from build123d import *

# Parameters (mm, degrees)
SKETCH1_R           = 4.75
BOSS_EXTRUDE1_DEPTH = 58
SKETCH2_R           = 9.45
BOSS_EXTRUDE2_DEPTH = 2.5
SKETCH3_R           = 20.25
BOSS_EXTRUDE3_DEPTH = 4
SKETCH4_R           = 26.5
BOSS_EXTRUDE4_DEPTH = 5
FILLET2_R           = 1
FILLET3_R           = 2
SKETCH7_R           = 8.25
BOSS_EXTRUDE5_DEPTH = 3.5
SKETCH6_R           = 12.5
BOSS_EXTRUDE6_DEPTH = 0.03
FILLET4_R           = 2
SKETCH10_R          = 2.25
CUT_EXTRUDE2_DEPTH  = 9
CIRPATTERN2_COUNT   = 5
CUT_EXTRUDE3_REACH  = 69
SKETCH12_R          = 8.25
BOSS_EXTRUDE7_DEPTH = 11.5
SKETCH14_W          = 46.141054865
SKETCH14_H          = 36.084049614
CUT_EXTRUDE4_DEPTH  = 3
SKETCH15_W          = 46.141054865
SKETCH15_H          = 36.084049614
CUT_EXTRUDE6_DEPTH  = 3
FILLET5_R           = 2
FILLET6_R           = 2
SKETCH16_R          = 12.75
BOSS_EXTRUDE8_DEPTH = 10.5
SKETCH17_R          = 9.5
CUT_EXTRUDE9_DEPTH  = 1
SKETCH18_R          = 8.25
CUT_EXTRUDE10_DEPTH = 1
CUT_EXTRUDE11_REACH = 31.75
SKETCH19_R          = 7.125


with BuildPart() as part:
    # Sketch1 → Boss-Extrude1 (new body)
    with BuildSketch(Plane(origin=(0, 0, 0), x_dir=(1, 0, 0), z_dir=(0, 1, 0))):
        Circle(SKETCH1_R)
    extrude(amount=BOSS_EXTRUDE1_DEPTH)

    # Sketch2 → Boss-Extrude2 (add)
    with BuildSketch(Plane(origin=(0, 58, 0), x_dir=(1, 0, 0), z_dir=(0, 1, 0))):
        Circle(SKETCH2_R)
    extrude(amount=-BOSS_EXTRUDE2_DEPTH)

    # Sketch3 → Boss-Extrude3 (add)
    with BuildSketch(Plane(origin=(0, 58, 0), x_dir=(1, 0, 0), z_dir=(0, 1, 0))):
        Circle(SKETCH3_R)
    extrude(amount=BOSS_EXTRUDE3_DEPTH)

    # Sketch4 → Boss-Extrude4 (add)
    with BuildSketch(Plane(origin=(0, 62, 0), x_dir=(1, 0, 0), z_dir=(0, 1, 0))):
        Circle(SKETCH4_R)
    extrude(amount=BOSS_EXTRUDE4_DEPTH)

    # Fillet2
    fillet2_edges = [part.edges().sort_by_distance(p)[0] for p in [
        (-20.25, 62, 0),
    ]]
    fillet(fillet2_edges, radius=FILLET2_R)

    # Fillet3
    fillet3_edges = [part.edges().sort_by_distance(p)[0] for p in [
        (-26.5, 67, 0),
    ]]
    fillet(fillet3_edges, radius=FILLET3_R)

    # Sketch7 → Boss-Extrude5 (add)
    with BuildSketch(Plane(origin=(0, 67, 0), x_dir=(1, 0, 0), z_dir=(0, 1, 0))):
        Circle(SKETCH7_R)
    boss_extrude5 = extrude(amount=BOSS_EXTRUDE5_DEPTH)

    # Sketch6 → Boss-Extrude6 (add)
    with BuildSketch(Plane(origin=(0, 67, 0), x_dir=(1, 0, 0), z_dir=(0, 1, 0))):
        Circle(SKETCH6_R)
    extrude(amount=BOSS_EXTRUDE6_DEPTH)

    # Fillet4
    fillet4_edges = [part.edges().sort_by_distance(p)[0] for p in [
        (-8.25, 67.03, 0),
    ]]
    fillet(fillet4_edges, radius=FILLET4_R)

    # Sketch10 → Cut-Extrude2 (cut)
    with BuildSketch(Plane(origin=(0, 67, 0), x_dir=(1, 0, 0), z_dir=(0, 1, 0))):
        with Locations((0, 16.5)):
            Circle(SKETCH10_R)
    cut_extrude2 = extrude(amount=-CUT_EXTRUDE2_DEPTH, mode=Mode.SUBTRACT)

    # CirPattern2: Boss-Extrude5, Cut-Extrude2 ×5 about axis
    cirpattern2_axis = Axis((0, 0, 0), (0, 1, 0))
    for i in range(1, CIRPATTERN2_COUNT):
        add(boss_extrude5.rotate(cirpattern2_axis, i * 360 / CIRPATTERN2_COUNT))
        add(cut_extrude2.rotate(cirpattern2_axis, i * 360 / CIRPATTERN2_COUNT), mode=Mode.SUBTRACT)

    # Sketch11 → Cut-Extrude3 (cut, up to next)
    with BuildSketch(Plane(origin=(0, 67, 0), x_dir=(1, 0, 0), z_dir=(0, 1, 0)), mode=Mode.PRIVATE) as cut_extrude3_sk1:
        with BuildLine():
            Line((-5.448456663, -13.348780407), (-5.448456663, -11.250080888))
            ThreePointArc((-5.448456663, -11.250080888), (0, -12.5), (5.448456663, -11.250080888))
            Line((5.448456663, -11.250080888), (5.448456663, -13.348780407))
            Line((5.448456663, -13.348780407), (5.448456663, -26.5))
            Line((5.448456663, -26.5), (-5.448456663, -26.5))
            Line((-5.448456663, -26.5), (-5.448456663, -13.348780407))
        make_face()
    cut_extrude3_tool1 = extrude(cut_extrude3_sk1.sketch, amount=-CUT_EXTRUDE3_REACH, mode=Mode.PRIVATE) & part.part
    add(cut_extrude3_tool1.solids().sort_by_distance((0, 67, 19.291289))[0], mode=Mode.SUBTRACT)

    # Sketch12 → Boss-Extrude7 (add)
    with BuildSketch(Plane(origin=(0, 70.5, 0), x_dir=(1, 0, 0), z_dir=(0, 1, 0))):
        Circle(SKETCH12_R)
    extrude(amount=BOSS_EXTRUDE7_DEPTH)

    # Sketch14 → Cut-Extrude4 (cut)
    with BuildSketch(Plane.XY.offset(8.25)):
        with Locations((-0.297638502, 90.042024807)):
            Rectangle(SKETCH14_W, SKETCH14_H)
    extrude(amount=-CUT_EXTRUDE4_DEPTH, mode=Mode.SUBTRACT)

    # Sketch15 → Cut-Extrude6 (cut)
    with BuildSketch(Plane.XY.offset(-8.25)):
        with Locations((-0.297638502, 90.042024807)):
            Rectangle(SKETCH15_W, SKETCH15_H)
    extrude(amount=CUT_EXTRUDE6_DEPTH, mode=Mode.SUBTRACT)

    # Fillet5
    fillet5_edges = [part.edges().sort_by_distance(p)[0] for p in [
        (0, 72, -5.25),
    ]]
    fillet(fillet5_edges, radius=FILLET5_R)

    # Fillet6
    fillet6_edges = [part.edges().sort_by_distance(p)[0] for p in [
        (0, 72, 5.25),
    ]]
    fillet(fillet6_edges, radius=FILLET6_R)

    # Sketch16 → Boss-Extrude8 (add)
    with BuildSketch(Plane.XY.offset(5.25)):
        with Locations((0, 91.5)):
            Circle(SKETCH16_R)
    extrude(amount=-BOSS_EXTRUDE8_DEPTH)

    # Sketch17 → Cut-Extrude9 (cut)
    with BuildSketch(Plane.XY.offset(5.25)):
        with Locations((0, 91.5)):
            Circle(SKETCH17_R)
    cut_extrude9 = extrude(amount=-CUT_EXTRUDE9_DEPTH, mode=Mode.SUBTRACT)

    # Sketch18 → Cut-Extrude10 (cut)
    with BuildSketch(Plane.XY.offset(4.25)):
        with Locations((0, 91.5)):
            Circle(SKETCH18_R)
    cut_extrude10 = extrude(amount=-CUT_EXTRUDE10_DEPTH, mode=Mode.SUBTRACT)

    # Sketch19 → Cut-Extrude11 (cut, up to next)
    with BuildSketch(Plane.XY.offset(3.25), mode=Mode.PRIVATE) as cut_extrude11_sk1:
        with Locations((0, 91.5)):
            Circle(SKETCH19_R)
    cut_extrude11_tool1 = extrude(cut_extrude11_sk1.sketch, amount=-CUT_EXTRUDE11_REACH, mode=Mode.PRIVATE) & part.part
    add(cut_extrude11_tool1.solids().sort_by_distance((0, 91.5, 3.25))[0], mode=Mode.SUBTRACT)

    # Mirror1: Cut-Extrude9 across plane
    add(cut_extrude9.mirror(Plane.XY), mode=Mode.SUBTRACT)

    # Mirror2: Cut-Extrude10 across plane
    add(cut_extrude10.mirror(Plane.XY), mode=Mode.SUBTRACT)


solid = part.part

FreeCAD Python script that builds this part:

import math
import FreeCAD as App
import Part
import Sketcher
from FreeCAD import Vector
Q = App.Units.Quantity


def edges_at(feature, points):
    """Names of the edges that pass closest to the given points."""
    edges = feature.Shape.Edges
    near = lambda p: min(range(len(edges)), key=lambda i: edges[i].distToShape(Part.Vertex(*p))[0])
    return sorted({f"Edge{near(p) + 1}" for p in points})

doc = App.newDocument("Part")
body = doc.addObject("PartDesign::Body", "Body")

# Sketch on XZ plane
sketch1 = body.newObject("Sketcher::SketchObject", "Sketch")
sketch1.AttachmentSupport = (doc.getObject("XZ_Plane"), [""])
sketch1.MapMode = "FlatFace"
sketch1.addGeometry(Part.Circle(Vector(0, 0, 0), Vector(0, 0, 1), 4.8), False)
sketch1.addConstraint([
    Sketcher.Constraint("Coincident", 0, 3, -1, 1),
    Sketcher.Constraint("Diameter", 0, Q("9.5 mm")),
])
pad1 = body.newObject("PartDesign::Pad", "Pad")
pad1.Profile = sketch1
pad1.Length = 58
pad1.Reversed = True

# Sketch on XZ plane
sketch2 = body.newObject("Sketcher::SketchObject", "Sketch001")
sketch2.AttachmentSupport = (doc.getObject("XZ_Plane"), [""])
sketch2.MapMode = "FlatFace"
sketch2.AttachmentOffset = App.Placement(Vector(0, 0, -58), App.Rotation())
sketch2.addGeometry(Part.Circle(Vector(0, 0, 0), Vector(0, 0, 1), 9), False)
sketch2.addConstraint([
    Sketcher.Constraint("Coincident", 0, 3, -1, 1),
    Sketcher.Constraint("Diameter", 0, Q("18.9 mm")),
])
pad2 = body.newObject("PartDesign::Pad", "Pad001")
pad2.Profile = sketch2
pad2.Length = 2.5

# Sketch on XZ plane
sketch3 = body.newObject("Sketcher::SketchObject", "Sketch002")
sketch3.AttachmentSupport = (doc.getObject("XZ_Plane"), [""])
sketch3.MapMode = "FlatFace"
sketch3.AttachmentOffset = App.Placement(Vector(0, 0, -58), App.Rotation())
sketch3.addGeometry(Part.Circle(Vector(0, 0, 0), Vector(0, 0, 1), 20), False)
sketch3.addConstraint([
    Sketcher.Constraint("Coincident", 0, 3, -1, 1),
    Sketcher.Constraint("Diameter", 0, Q("40.5 mm")),
])
pad3 = body.newObject("PartDesign::Pad", "Pad002")
pad3.Profile = sketch3
pad3.Length = 4
pad3.Reversed = True

# Sketch on XZ plane
sketch4 = body.newObject("Sketcher::SketchObject", "Sketch003")
sketch4.AttachmentSupport = (doc.getObject("XZ_Plane"), [""])
sketch4.MapMode = "FlatFace"
sketch4.AttachmentOffset = App.Placement(Vector(0, 0, -62), App.Rotation())
sketch4.addGeometry(Part.Circle(Vector(0, 0, 0), Vector(0, 0, 1), 26), False)
sketch4.addConstraint([
    Sketcher.Constraint("Coincident", 0, 3, -1, 1),
    Sketcher.Constraint("Diameter", 0, Q("53 mm")),
])
pad4 = body.newObject("PartDesign::Pad", "Pad003")
pad4.Profile = sketch4
pad4.Length = 5
pad4.Reversed = True
doc.recompute()

fillet = body.newObject("PartDesign::Fillet", "Fillet")
fillet.Base = (pad4, edges_at(pad4, [(-20.25, 62, 0)]))
fillet.Radius = 1
doc.recompute()

fillet2 = body.newObject("PartDesign::Fillet", "Fillet001")
fillet2.Base = (fillet, edges_at(fillet, [(-26.5, 67, 0)]))
fillet2.Radius = 2

# Sketch on XZ plane
sketch5 = body.newObject("Sketcher::SketchObject", "Sketch004")
sketch5.AttachmentSupport = (doc.getObject("XZ_Plane"), [""])
sketch5.MapMode = "FlatFace"
sketch5.AttachmentOffset = App.Placement(Vector(0, 0, -67), App.Rotation())
sketch5.addGeometry(Part.Circle(Vector(0, 0, 0), Vector(0, 0, 1), 8), False)
sketch5.addConstraint([
    Sketcher.Constraint("Coincident", 0, 3, -1, 1),
    Sketcher.Constraint("Diameter", 0, Q("16.5 mm")),
])
pad5 = body.newObject("PartDesign::Pad", "Pad004")
pad5.Profile = sketch5
pad5.Length = 3.5
pad5.Reversed = True

# Sketch on XZ plane
sketch6 = body.newObject("Sketcher::SketchObject", "Sketch005")
sketch6.AttachmentSupport = (doc.getObject("XZ_Plane"), [""])
sketch6.MapMode = "FlatFace"
sketch6.AttachmentOffset = App.Placement(Vector(0, 0, -67), App.Rotation())
sketch6.addGeometry(Part.Circle(Vector(0, 0, 0), Vector(0, 0, 1), 12), False)
sketch6.addConstraint([
    Sketcher.Constraint("Coincident", 0, 3, -1, 1),
    Sketcher.Constraint("Diameter", 0, Q("25 mm")),
])
pad6 = body.newObject("PartDesign::Pad", "Pad005")
pad6.Profile = sketch6
pad6.Length = 0.03
pad6.Reversed = True
doc.recompute()

fillet3 = body.newObject("PartDesign::Fillet", "Fillet002")
fillet3.Base = (pad6, edges_at(pad6, [(-8.25, 67.03, 0)]))
fillet3.Radius = 2

# Sketch on XZ plane
sketch7 = body.newObject("Sketcher::SketchObject", "Sketch006")
sketch7.AttachmentSupport = (doc.getObject("XZ_Plane"), [""])
sketch7.MapMode = "FlatFace"
sketch7.AttachmentOffset = App.Placement(Vector(0, 0, -67), App.Rotation())
sketch7.addGeometry(Part.Circle(Vector(0, -16.5, 0), Vector(0, 0, 1), 2.2), False)
sketch7.addConstraint([
    Sketcher.Constraint("PointOnObject", 0, 3, -2),
    Sketcher.Constraint("Diameter", 0, Q("4.5 mm")),
    Sketcher.Constraint("DistanceY", 0, 3, -1, 1, Q("16.5 mm")),
])
pocket1 = body.newObject("PartDesign::Pocket", "Pocket")
pocket1.Profile = sketch7
pocket1.Length = 9
pocket1.Reversed = True
doc.recompute()

polarpattern = body.newObject("PartDesign::PolarPattern", "PolarPattern")
polarpattern.Originals = [pad5, pocket1]
polarpattern.Axis = (doc.getObject("Y_Axis"), [""])
polarpattern.Angle = 360
polarpattern.Occurrences = 5
body.Tip = polarpattern

# Sketch on XZ plane
sketch8 = body.newObject("Sketcher::SketchObject", "Sketch007")
sketch8.AttachmentSupport = (doc.getObject("XZ_Plane"), [""])
sketch8.MapMode = "FlatFace"
sketch8.AttachmentOffset = App.Placement(Vector(0, 0, -67), App.Rotation())
sketch8.addGeometry([
    Part.ArcOfCircle(Part.Circle(Vector(0, 0, 0), Vector(0, 0, 1), 12), math.radians(64), math.radians(116)),
    Part.LineSegment(Vector(-5, 11, 0), Vector(-5, 26, 0)),
    Part.LineSegment(Vector(-5, 26, 0), Vector(5, 26, 0)),
    Part.LineSegment(Vector(5, 26, 0), Vector(5, 11, 0)),
], False)
sketch8.addConstraint([
    Sketcher.Constraint("Coincident", 0, 2, 1, 1),
    Sketcher.Constraint("Coincident", 1, 2, 2, 1),
    Sketcher.Constraint("Coincident", 2, 2, 3, 1),
    Sketcher.Constraint("Coincident", 3, 2, 0, 1),
    Sketcher.Constraint("Vertical", 1),
    Sketcher.Constraint("Horizontal", 2),
    Sketcher.Constraint("Vertical", 3),
    Sketcher.Constraint("Coincident", 0, 3, -1, 1),
    Sketcher.Constraint("Horizontal", 0, 2, 3, 2),
    Sketcher.Constraint("Radius", 0, Q("12.5 mm")),
    Sketcher.Constraint("DistanceY", -1, 1, 1, 2, Q("26.5 mm")),
    Sketcher.Constraint("DistanceY", 1, 1, 1, 2, Q("15.249919 mm")),
])
pocket2 = body.newObject("PartDesign::Pocket", "Pocket001")
pocket2.Profile = sketch8
pocket2.Type = "UpToFirst"
pocket2.Reversed = True

# Sketch on XZ plane
sketch9 = body.newObject("Sketcher::SketchObject", "Sketch008")
sketch9.AttachmentSupport = (doc.getObject("XZ_Plane"), [""])
sketch9.MapMode = "FlatFace"
sketch9.AttachmentOffset = App.Placement(Vector(0, 0, -70.5), App.Rotation())
sketch9.addGeometry(Part.Circle(Vector(0, 0, 0), Vector(0, 0, 1), 8), False)
sketch9.addConstraint([
    Sketcher.Constraint("Coincident", 0, 3, -1, 1),
    Sketcher.Constraint("Diameter", 0, Q("16.5 mm")),
])
pad7 = body.newObject("PartDesign::Pad", "Pad006")
pad7.Profile = sketch9
pad7.Length = 11.5
pad7.Reversed = True

# Sketch on XY plane
sketch10 = body.newObject("Sketcher::SketchObject", "Sketch009")
sketch10.AttachmentSupport = (doc.getObject("XY_Plane"), [""])
sketch10.MapMode = "FlatFace"
sketch10.AttachmentOffset = App.Placement(Vector(0, 0, 8.25), App.Rotation())
sketch10.addGeometry([
    Part.LineSegment(Vector(-23, 108, 0), Vector(-23, 72, 0)),
    Part.LineSegment(Vector(-23, 72, 0), Vector(23, 72, 0)),
    Part.LineSegment(Vector(23, 72, 0), Vector(23, 108, 0)),
    Part.LineSegment(Vector(23, 108, 0), Vector(-23, 108, 0)),
], False)
sketch10.addConstraint([
    Sketcher.Constraint("Coincident", 0, 2, 1, 1),
    Sketcher.Constraint("Coincident", 1, 2, 2, 1),
    Sketcher.Constraint("Coincident", 2, 2, 3, 1),
    Sketcher.Constraint("Coincident", 3, 2, 0, 1),
    Sketcher.Constraint("Vertical", 0),
    Sketcher.Constraint("Horizontal", 1),
    Sketcher.Constraint("Vertical", 2),
    Sketcher.Constraint("Horizontal", 3),
    Sketcher.Constraint("DistanceY", -1, 1, 0, 2, Q("72 mm")),
    Sketcher.Constraint("DistanceY", 0, 2, 0, 1, Q("36.08405 mm")),
    Sketcher.Constraint("DistanceX", 1, 1, 1, 2, Q("46.141055 mm")),
    Sketcher.Constraint("DistanceX", -1, 1, 1, 2, Q("22.772889 mm")),
])
pocket3 = body.newObject("PartDesign::Pocket", "Pocket002")
pocket3.Profile = sketch10
pocket3.Length = 3

# Sketch on XY plane
sketch11 = body.newObject("Sketcher::SketchObject", "Sketch010")
sketch11.AttachmentSupport = (doc.getObject("XY_Plane"), [""])
sketch11.MapMode = "FlatFace"
sketch11.AttachmentOffset = App.Placement(Vector(0, 0, -8.25), App.Rotation())
sketch11.addGeometry([
    Part.LineSegment(Vector(-23, 108, 0), Vector(-23, 72, 0)),
    Part.LineSegment(Vector(-23, 72, 0), Vector(23, 72, 0)),
    Part.LineSegment(Vector(23, 72, 0), Vector(23, 108, 0)),
    Part.LineSegment(Vector(23, 108, 0), Vector(-23, 108, 0)),
], False)
sketch11.addConstraint([
    Sketcher.Constraint("Coincident", 0, 2, 1, 1),
    Sketcher.Constraint("Coincident", 1, 2, 2, 1),
    Sketcher.Constraint("Coincident", 2, 2, 3, 1),
    Sketcher.Constraint("Coincident", 3, 2, 0, 1),
    Sketcher.Constraint("Vertical", 0),
    Sketcher.Constraint("Horizontal", 1),
    Sketcher.Constraint("Vertical", 2),
    Sketcher.Constraint("Horizontal", 3),
    Sketcher.Constraint("DistanceY", -1, 1, 0, 2, Q("72 mm")),
    Sketcher.Constraint("DistanceY", 0, 2, 0, 1, Q("36.08405 mm")),
    Sketcher.Constraint("DistanceX", 1, 1, 1, 2, Q("46.141055 mm")),
    Sketcher.Constraint("DistanceX", -1, 1, 1, 2, Q("22.772889 mm")),
])
pocket4 = body.newObject("PartDesign::Pocket", "Pocket003")
pocket4.Profile = sketch11
pocket4.Length = 3
pocket4.Reversed = True
doc.recompute()

fillet4 = body.newObject("PartDesign::Fillet", "Fillet003")
fillet4.Base = (pocket4, edges_at(pocket4, [(0, 72, -5.25)]))
fillet4.Radius = 2
doc.recompute()

fillet5 = body.newObject("PartDesign::Fillet", "Fillet004")
fillet5.Base = (fillet4, edges_at(fillet4, [(0, 72, 5.25)]))
fillet5.Radius = 2

# Sketch on XY plane
sketch12 = body.newObject("Sketcher::SketchObject", "Sketch011")
sketch12.AttachmentSupport = (doc.getObject("XY_Plane"), [""])
sketch12.MapMode = "FlatFace"
sketch12.AttachmentOffset = App.Placement(Vector(0, 0, 5.25), App.Rotation())
sketch12.addGeometry(Part.Circle(Vector(0, 92, 0), Vector(0, 0, 1), 13), False)
sketch12.addConstraint([
    Sketcher.Constraint("PointOnObject", 0, 3, -2),
    Sketcher.Constraint("Diameter", 0, Q("25.5 mm")),
    Sketcher.Constraint("DistanceY", -1, 1, 0, 3, Q("91.5 mm")),
])
pad8 = body.newObject("PartDesign::Pad", "Pad007")
pad8.Profile = sketch12
pad8.Length = 10.5
pad8.Reversed = True

# Sketch on XY plane
sketch13 = body.newObject("Sketcher::SketchObject", "Sketch012")
sketch13.AttachmentSupport = (doc.getObject("XY_Plane"), [""])
sketch13.MapMode = "FlatFace"
sketch13.AttachmentOffset = App.Placement(Vector(0, 0, 5.25), App.Rotation())
sketch13.addGeometry(Part.Circle(Vector(0, 92, 0), Vector(0, 0, 1), 10), False)
sketch13.addConstraint([
    Sketcher.Constraint("PointOnObject", 0, 3, -2),
    Sketcher.Constraint("Diameter", 0, Q("19 mm")),
    Sketcher.Constraint("DistanceY", -1, 1, 0, 3, Q("91.5 mm")),
])
pocket5 = body.newObject("PartDesign::Pocket", "Pocket004")
pocket5.Profile = sketch13
pocket5.Length = 1

# Sketch on XY plane
sketch14 = body.newObject("Sketcher::SketchObject", "Sketch013")
sketch14.AttachmentSupport = (doc.getObject("XY_Plane"), [""])
sketch14.MapMode = "FlatFace"
sketch14.AttachmentOffset = App.Placement(Vector(0, 0, 4.25), App.Rotation())
sketch14.addGeometry(Part.Circle(Vector(0, 92, 0), Vector(0, 0, 1), 8), False)
sketch14.addConstraint([
    Sketcher.Constraint("PointOnObject", 0, 3, -2),
    Sketcher.Constraint("Diameter", 0, Q("16.5 mm")),
    Sketcher.Constraint("DistanceY", -1, 1, 0, 3, Q("91.5 mm")),
])
pocket6 = body.newObject("PartDesign::Pocket", "Pocket005")
pocket6.Profile = sketch14
pocket6.Length = 1

# Sketch on XY plane
sketch15 = body.newObject("Sketcher::SketchObject", "Sketch014")
sketch15.AttachmentSupport = (doc.getObject("XY_Plane"), [""])
sketch15.MapMode = "FlatFace"
sketch15.AttachmentOffset = App.Placement(Vector(0, 0, 3.25), App.Rotation())
sketch15.addGeometry(Part.Circle(Vector(0, 92, 0), Vector(0, 0, 1), 7), False)
sketch15.addConstraint([
    Sketcher.Constraint("PointOnObject", 0, 3, -2),
    Sketcher.Constraint("Diameter", 0, Q("14.25 mm")),
    Sketcher.Constraint("DistanceY", -1, 1, 0, 3, Q("91.5 mm")),
])
pocket7 = body.newObject("PartDesign::Pocket", "Pocket006")
pocket7.Profile = sketch15
pocket7.Type = "UpToFirst"
doc.recompute()

mirrored = body.newObject("PartDesign::Mirrored", "Mirrored")
mirrored.Originals = [pocket5]
mirrored.MirrorPlane = (doc.getObject("XY_Plane"), [""])
body.Tip = mirrored
doc.recompute()

mirrored2 = body.newObject("PartDesign::Mirrored", "Mirrored001")
mirrored2.Originals = [pocket6]
mirrored2.MirrorPlane = (doc.getObject("XY_Plane"), [""])
body.Tip = mirrored2

doc.recompute()
